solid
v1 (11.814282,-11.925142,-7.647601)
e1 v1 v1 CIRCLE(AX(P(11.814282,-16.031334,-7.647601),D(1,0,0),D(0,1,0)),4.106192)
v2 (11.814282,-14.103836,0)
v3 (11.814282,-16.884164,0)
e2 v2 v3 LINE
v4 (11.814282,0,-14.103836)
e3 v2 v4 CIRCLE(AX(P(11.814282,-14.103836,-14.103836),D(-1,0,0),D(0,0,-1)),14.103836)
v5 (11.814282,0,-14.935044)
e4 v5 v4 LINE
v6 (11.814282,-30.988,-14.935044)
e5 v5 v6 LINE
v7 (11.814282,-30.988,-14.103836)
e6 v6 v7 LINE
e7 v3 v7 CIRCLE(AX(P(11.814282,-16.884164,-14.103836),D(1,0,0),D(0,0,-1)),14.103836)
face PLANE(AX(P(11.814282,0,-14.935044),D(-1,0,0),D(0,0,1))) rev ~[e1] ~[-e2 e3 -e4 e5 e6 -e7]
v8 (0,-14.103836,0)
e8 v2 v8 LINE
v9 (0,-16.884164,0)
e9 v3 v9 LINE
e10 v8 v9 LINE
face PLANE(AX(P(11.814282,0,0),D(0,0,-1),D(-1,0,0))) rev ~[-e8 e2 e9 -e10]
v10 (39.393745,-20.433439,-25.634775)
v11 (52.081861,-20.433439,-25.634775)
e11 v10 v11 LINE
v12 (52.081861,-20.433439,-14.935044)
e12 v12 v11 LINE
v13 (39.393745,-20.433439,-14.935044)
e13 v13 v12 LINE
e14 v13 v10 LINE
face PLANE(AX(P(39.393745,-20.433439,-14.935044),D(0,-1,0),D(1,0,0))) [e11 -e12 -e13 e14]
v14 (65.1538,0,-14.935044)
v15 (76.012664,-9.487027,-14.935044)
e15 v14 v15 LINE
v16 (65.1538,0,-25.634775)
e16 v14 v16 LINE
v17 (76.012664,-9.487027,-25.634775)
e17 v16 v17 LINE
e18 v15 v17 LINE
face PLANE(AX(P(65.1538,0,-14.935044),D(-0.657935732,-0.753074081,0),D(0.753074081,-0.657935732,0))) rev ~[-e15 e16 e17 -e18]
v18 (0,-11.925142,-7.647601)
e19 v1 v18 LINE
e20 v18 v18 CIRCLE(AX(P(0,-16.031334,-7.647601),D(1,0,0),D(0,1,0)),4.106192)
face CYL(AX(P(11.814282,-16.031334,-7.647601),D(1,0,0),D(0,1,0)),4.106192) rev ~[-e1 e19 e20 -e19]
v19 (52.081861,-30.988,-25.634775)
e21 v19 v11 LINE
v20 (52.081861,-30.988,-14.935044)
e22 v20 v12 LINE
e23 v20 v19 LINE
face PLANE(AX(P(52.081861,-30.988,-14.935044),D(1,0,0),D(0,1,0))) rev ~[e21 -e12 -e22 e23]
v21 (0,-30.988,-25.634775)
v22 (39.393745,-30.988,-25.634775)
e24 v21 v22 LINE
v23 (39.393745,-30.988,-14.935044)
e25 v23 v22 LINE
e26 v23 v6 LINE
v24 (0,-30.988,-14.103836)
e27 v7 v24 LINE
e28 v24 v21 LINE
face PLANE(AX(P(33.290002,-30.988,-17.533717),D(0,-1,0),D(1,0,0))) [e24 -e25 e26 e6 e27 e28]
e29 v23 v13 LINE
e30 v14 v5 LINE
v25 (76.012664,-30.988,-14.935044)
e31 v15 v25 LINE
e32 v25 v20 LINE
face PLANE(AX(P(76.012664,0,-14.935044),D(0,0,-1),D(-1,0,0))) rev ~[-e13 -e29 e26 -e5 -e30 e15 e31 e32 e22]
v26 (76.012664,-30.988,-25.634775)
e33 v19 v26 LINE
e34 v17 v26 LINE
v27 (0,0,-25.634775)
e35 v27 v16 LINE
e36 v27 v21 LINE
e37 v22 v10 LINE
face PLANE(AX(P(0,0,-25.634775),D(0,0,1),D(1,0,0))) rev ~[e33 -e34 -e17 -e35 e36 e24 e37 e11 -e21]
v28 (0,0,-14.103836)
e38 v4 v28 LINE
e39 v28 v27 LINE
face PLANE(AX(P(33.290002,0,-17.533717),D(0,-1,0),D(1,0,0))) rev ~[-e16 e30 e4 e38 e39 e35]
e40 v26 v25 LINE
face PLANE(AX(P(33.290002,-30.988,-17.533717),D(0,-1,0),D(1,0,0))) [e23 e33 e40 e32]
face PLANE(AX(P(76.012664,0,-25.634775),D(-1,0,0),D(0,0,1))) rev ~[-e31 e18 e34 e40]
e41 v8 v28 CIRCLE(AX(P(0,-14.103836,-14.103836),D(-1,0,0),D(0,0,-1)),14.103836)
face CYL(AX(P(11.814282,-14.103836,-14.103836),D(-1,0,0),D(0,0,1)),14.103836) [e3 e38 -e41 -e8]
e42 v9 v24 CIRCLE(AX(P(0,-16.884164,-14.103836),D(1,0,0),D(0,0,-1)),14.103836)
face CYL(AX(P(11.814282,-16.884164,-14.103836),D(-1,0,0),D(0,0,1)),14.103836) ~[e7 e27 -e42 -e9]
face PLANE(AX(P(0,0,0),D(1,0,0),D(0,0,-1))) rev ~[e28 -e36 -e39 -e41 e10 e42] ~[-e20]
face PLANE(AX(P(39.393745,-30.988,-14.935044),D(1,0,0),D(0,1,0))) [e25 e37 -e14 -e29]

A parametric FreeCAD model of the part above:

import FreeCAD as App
import Part
import Sketcher

V = App.Vector
Q = App.Units.Quantity


def edges_at(feature, points):
    """Names of the edges that pass closest to the given points."""
    edges = feature.Shape.Edges
    near = lambda p: min(range(len(edges)), key=lambda i: edges[i].distToShape(Part.Vertex(*p))[0])
    return sorted({f"Edge{near(p) + 1}" for p in points})


def add_polygon(sketch, points):
    """Adds a closed chain of lines whose ends are joined by coincident constraints."""
    first, n = sketch.GeometryCount, len(points)
    for a, b in zip(points, points[1:] + points[:1]):
        sketch.addGeometry(Part.LineSegment(App.Vector(*a, 0), App.Vector(*b, 0)), False)
    for i in range(n):
        sketch.addConstraint(Sketcher.Constraint("Coincident", first + i, 2, first + (i + 1) % n, 1))

doc = App.newDocument("Part")
body = doc.addObject("PartDesign::Body", "Body")

# Sketch on XZ plane
sketch1 = body.newObject("Sketcher::SketchObject", "Sketch")
sketch1.AttachmentSupport = (doc.getObject("XZ_Plane"), [""])
sketch1.MapMode = "FlatFace"
add_polygon(sketch1, [(12, 0), (0, 0), (0, -26), (76, -26), (76, -15), (12, -15)])  # lines 0-5
sketch1.addConstraint(Sketcher.Constraint("Horizontal", 0))
sketch1.addConstraint(Sketcher.Constraint("Vertical", 1))
sketch1.addConstraint(Sketcher.Constraint("Horizontal", 2))
sketch1.addConstraint(Sketcher.Constraint("Vertical", 3))
sketch1.addConstraint(Sketcher.Constraint("Horizontal", 4))
sketch1.addConstraint(Sketcher.Constraint("Vertical", 5))
sketch1.addConstraint(Sketcher.Constraint("Coincident", 0, 2, -1, 1))
sketch1.addConstraint(Sketcher.Constraint("DistanceX", 4, 2, 4, 1, 64.198381))
sketch1.addConstraint(Sketcher.Constraint("DistanceY", 3, 1, 3, 2, 10.699731))
sketch1.addConstraint(Sketcher.Constraint("DistanceX", 0, 2, 0, 1, 11.814282))
sketch1.addConstraint(Sketcher.Constraint("DistanceY", 1, 2, 1, 1, 25.634775))
pad1 = body.newObject("PartDesign::Pad", "Pad")
pad1.Profile = sketch1
pad1.Length = Q("1.22 in")

# Sketch on XY plane
sketch2 = body.newObject("Sketcher::SketchObject", "Sketch001")
sketch2.AttachmentSupport = (doc.getObject("XY_Plane"), [""])
sketch2.MapMode = "FlatFace"
sketch2.AttachmentOffset = App.Placement(V(0, 0, -14.935044), App.Rotation())
add_polygon(sketch2, [(39, -20), (39, -31), (52, -31), (52, -20)])  # lines 0-3
sketch2.addConstraint(Sketcher.Constraint("Vertical", 0))
sketch2.addConstraint(Sketcher.Constraint("Horizontal", 1))
sketch2.addConstraint(Sketcher.Constraint("Vertical", 2))
sketch2.addConstraint(Sketcher.Constraint("Horizontal", 3))
sketch2.addConstraint(Sketcher.Constraint("DistanceY", 0, 2, -1, 1, Q("1.22 in")))
sketch2.addConstraint(Sketcher.Constraint("DistanceY", 0, 2, 0, 1, 10.554561))
sketch2.addConstraint(Sketcher.Constraint("DistanceX", 1, 1, 1, 2, 12.688115))
sketch2.addConstraint(Sketcher.Constraint("DistanceX", -1, 1, 1, 2, 52.081861))
pocket1 = body.newObject("PartDesign::Pocket", "Pocket")
pocket1.Profile = sketch2
pocket1.Length = Q("1 in")

# Sketch on XY plane
sketch3 = body.newObject("Sketcher::SketchObject", "Sketch002")
sketch3.AttachmentSupport = (doc.getObject("XY_Plane"), [""])
sketch3.MapMode = "FlatFace"
sketch3.AttachmentOffset = App.Placement(V(0, 0, -14.935044), App.Rotation())
add_polygon(sketch3, [(76, 0), (65, 0), (76, -9)])  # lines 0-2
add_polygon(sketch3, [(39, -20), (39, -31), (52, -31), (52, -20)])  # lines 3-6
sketch3.addConstraint(Sketcher.Constraint("Horizontal", 0))
sketch3.addConstraint(Sketcher.Constraint("Vertical", 2))
sketch3.addConstraint(Sketcher.Constraint("Vertical", 3))
sketch3.addConstraint(Sketcher.Constraint("Horizontal", 4))
sketch3.addConstraint(Sketcher.Constraint("Vertical", 5))
sketch3.addConstraint(Sketcher.Constraint("Horizontal", 6))
sketch3.addConstraint(Sketcher.Constraint("PointOnObject", 0, 2, -1))
sketch3.addConstraint(Sketcher.Constraint("DistanceY", 3, 2, -1, 1, Q("1.22 in")))
sketch3.addConstraint(Sketcher.Constraint("DistanceY", 3, 2, 3, 1, 10.554561))
sketch3.addConstraint(Sketcher.Constraint("DistanceX", -1, 1, 0, 2, 65.1538))
sketch3.addConstraint(Sketcher.Constraint("DistanceX", 0, 2, 0, 1, 10.858864))
sketch3.addConstraint(Sketcher.Constraint("DistanceX", 4, 1, 4, 2, 12.688115))
sketch3.addConstraint(Sketcher.Constraint("DistanceY", 2, 1, 2, 2, 9.487027))
sketch3.addConstraint(Sketcher.Constraint("DistanceX", -1, 1, 4, 2, 52.081861))
pocket2 = body.newObject("PartDesign::Pocket", "Pocket001")
pocket2.Profile = sketch3
pocket2.Length = Q("1 in")

# Sketch on YZ plane
sketch4 = body.newObject("Sketcher::SketchObject", "Sketch003")
sketch4.AttachmentSupport = (doc.getObject("YZ_Plane"), [""])
sketch4.MapMode = "FlatFace"
sketch4.AttachmentOffset = App.Placement(V(0, 0, 11.814282), App.Rotation())
sketch4.addGeometry(Part.Circle(V(-16, -7.6, 0), V(0, 0, 1), 4.1), False)
sketch4.addConstraint(Sketcher.Constraint("Diameter", 0, 8.212384))
sketch4.addConstraint(Sketcher.Constraint("DistanceY", 0, 3, -1, 1, 7.647601))
sketch4.addConstraint(Sketcher.Constraint("DistanceX", 0, 3, -1, 1, 16.031334))
pocket3 = body.newObject("PartDesign::Pocket", "Pocket002")
pocket3.Profile = sketch4
pocket3.Length = Q("1 in")
doc.recompute()

fillet = body.newObject("PartDesign::Fillet", "Fillet")
fillet.Base = (pocket3, edges_at(pocket3, [(5.907, -30.988, 0), (5.907, 0, 0)]))
fillet.Radius = 14.103836

doc.recompute()
